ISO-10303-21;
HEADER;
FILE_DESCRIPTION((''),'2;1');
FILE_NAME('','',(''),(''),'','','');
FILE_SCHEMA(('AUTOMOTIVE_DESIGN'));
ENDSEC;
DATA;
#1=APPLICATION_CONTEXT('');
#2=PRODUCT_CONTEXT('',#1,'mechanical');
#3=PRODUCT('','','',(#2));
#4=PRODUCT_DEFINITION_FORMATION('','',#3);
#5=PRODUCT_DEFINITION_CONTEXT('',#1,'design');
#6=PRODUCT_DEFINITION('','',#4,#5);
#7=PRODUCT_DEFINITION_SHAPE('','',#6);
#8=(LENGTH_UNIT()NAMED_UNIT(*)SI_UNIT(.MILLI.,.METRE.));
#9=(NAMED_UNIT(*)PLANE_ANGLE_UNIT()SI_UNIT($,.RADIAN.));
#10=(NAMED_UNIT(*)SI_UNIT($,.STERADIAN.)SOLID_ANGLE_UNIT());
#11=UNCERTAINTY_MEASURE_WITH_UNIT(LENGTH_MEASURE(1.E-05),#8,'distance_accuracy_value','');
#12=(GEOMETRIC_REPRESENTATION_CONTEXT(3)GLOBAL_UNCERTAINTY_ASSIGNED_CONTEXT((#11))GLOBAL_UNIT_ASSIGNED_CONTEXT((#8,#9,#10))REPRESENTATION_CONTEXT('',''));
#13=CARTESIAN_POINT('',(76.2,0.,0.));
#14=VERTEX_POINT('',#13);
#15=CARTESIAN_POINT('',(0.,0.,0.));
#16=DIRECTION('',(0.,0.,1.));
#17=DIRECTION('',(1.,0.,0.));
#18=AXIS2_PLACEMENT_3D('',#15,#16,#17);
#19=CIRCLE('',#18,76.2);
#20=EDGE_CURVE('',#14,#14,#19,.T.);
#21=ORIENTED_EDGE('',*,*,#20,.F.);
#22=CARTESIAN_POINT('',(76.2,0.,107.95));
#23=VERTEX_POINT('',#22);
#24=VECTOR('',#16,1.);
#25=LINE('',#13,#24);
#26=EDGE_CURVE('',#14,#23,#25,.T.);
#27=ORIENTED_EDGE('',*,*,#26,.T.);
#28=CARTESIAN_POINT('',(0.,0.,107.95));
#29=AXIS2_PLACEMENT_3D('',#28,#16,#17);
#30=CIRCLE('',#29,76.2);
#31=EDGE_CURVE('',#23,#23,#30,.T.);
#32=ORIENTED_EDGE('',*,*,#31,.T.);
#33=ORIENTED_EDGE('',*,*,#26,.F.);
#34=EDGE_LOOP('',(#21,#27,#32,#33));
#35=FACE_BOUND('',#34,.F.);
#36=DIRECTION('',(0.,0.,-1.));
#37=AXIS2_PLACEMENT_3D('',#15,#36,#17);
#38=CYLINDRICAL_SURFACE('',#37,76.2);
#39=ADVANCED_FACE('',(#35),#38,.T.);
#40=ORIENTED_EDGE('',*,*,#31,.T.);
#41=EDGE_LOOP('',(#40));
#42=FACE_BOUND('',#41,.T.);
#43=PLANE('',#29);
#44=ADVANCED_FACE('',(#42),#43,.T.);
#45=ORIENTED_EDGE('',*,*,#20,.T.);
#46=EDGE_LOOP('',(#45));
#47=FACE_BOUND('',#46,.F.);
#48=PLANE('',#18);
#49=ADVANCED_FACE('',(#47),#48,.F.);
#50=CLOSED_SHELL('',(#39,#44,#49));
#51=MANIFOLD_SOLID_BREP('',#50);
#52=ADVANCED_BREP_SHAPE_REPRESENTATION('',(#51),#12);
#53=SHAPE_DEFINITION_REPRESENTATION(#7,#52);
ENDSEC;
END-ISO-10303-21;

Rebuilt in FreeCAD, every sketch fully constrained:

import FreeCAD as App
import Part
import Sketcher

V = App.Vector
Q = App.Units.Quantity

doc = App.newDocument("Part")
body = doc.addObject("PartDesign::Body", "Body")

sketch1 = body.newObject("Sketcher::SketchObject", "Sketch")
sketch1.AttachmentSupport = (doc.getObject("XY_Plane"), [""])
sketch1.MapMode = "FlatFace"
sketch1.addGeometry(Part.Circle(V(0, 0, 0), V(0, 0, 1), 76), False)
sketch1.addConstraint(Sketcher.Constraint("Coincident", 0, 3, -1, 1))
sketch1.addConstraint(Sketcher.Constraint("Diameter", 0, Q("6 in")))
pad1 = body.newObject("PartDesign::Pad", "Pad")
pad1.Profile = sketch1
pad1.Length = Q("4.25 in")

sketch2 = body.newObject("Sketcher::SketchObject", "Sketch001")
sketch2.AttachmentSupport = (doc.getObject("XY_Plane"), [""])
sketch2.MapMode = "FlatFace"
sketch2.addGeometry(Part.Circle(V(-136, 110, 0), V(0, 0, 1), 16), False)
sketch2.addConstraint(Sketcher.Constraint("Diameter", 0, 31.641126))
sketch2.addConstraint(Sketcher.Constraint("DistanceX", 0, 3, -1, 1, 136.144727))
sketch2.addConstraint(Sketcher.Constraint("DistanceY", -1, 1, 0, 3, 109.994054))
pocket1 = body.newObject("PartDesign::Pocket", "Pocket")
pocket1.Profile = sketch2
pocket1.Length = Q("9.26 in")

sketch3 = body.newObject("Sketcher::SketchObject", "Sketch002")
sketch3.AttachmentSupport = (doc.getObject("XY_Plane"), [""])
sketch3.MapMode = "FlatFace"
sketch3.addGeometry(Part.Circle(V(0, 0, 0), V(0, 0, 1), 29), False)
sketch3.addConstraint(Sketcher.Constraint("Coincident", 0, 3, -1, 1))
sketch3.addConstraint(Sketcher.Constraint("Diameter", 0, 58.865426))
pocket2 = body.newObject("PartDesign::Pocket", "Pocket001")
pocket2.Profile = sketch3
pocket2.Length = Q("11.54 in")

doc.recompute()
